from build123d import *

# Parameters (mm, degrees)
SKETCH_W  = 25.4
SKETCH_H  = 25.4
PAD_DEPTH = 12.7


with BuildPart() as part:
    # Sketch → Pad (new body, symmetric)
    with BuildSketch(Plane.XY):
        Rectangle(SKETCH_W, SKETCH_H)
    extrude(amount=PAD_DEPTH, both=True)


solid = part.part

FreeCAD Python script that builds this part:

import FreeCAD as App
import Part
import Sketcher
Q = App.Units.Quantity


def add_polygon(sketch, points):
    """Adds a closed chain of lines whose ends are joined by coincident constraints."""
    first, n = sketch.GeometryCount, len(points)
    for a, b in zip(points, points[1:] + points[:1]):
        sketch.addGeometry(Part.LineSegment(App.Vector(*a, 0), App.Vector(*b, 0)), False)
    for i in range(n):
        sketch.addConstraint(Sketcher.Constraint("Coincident", first + i, 2, first + (i + 1) % n, 1))

doc = App.newDocument("Part")
body = doc.addObject("PartDesign::Body", "Body")

# Sketch on XY plane
sketch1 = body.newObject("Sketcher::SketchObject", "Sketch")
sketch1.AttachmentSupport = (doc.getObject("XY_Plane"), [""])
sketch1.MapMode = "FlatFace"
add_polygon(sketch1, [(-13, 13), (-13, -13), (13, -13), (13, 13)])  # lines 0-3
sketch1.addConstraint(Sketcher.Constraint("Vertical", 0))
sketch1.addConstraint(Sketcher.Constraint("Horizontal", 1))
sketch1.addConstraint(Sketcher.Constraint("Vertical", 2))
sketch1.addConstraint(Sketcher.Constraint("Horizontal", 3))
sketch1.addConstraint(Sketcher.Constraint("Symmetric", 0, 2, 2, 2, -1, 1))
sketch1.addConstraint(Sketcher.Constraint("Equal", 3, 0))
sketch1.addConstraint(Sketcher.Constraint("DistanceX", 1, 1, 1, 2, Q("1 in")))
pad1 = body.newObject("PartDesign::Pad", "Pad")
pad1.Profile = sketch1
pad1.Length = Q("1 in")
pad1.Midplane = True

doc.recompute()
